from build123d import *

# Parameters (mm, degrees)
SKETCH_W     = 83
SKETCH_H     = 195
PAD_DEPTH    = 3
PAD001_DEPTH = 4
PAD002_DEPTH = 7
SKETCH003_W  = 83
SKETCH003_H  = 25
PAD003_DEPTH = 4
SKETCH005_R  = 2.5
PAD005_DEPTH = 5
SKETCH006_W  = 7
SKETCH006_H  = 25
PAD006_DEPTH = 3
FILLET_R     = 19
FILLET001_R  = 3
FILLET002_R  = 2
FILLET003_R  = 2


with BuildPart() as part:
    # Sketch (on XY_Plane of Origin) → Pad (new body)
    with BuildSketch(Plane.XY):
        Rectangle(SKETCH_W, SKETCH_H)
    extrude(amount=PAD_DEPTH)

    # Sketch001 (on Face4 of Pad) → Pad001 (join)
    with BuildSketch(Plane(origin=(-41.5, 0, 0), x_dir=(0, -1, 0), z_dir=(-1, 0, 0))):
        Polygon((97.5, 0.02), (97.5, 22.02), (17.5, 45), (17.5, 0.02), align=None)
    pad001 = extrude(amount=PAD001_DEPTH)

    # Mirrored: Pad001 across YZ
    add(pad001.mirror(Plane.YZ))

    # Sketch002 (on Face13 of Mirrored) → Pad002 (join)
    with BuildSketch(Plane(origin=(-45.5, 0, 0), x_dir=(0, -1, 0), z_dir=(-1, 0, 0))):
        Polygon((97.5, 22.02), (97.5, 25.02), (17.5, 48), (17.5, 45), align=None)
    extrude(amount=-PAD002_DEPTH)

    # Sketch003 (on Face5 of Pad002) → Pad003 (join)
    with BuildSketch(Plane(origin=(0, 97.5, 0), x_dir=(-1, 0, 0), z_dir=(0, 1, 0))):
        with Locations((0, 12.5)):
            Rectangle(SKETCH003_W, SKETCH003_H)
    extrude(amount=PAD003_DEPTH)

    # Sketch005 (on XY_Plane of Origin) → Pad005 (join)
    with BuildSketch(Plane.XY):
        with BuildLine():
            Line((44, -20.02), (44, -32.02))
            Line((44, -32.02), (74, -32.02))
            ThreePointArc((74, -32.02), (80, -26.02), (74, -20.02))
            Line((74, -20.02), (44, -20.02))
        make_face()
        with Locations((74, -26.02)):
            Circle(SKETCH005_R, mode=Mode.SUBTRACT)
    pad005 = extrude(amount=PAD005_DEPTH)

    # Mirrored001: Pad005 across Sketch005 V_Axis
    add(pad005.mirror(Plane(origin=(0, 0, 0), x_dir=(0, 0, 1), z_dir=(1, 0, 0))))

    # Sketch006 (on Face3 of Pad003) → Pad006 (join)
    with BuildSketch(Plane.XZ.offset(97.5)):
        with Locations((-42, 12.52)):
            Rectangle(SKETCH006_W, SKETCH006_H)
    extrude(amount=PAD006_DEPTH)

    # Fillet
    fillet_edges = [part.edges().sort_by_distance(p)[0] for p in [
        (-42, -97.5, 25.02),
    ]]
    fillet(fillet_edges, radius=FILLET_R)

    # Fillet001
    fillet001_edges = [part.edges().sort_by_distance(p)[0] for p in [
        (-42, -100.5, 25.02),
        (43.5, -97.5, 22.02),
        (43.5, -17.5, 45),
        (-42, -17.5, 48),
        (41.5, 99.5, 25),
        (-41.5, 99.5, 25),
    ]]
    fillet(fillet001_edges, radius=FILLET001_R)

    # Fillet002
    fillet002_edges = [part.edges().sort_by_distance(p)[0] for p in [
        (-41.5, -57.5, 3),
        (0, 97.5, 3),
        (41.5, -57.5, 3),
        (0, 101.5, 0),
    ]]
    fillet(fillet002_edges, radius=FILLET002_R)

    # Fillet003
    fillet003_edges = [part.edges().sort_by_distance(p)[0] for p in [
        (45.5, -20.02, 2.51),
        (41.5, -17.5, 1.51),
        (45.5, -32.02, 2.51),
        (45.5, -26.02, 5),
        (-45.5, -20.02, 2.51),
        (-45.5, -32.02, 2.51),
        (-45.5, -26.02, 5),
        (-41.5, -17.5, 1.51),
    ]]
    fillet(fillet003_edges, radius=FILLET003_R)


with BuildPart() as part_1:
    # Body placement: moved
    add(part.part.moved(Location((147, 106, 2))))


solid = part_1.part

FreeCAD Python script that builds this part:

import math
import FreeCAD as App
import Part
import Sketcher
from FreeCAD import Vector
Q = App.Units.Quantity


def edges_at(feature, points):
    """Names of the edges that pass closest to the given points."""
    edges = feature.Shape.Edges
    near = lambda p: min(range(len(edges)), key=lambda i: edges[i].distToShape(Part.Vertex(*p))[0])
    return sorted({f"Edge{near(p) + 1}" for p in points})

doc = App.newDocument("Part")
body = doc.addObject("PartDesign::Body", "Body")

sketch1 = doc.addObject("Sketcher::SketchObject", "Sketch")
body.addObject(sketch1)
sketch1.AttachmentSupport = (doc.XY_Plane, [""])
sketch1.MapMode = "FlatFace"
sketch1.addGeometry(Part.LineSegment(Vector(-42, 98, 0), Vector(-42, -98, 0)), False)
sketch1.addGeometry(Part.LineSegment(Vector(-42, -98, 0), Vector(42, -98, 0)), False)
sketch1.addGeometry(Part.LineSegment(Vector(42, -98, 0), Vector(42, 98, 0)), False)
sketch1.addGeometry(Part.LineSegment(Vector(42, 98, 0), Vector(-42, 98, 0)), False)
sketch1.addConstraint(Sketcher.Constraint("Coincident", 0, 2, 1, 1))
sketch1.addConstraint(Sketcher.Constraint("Coincident", 1, 2, 2, 1))
sketch1.addConstraint(Sketcher.Constraint("Coincident", 2, 2, 3, 1))
sketch1.addConstraint(Sketcher.Constraint("Coincident", 3, 2, 0, 1))
sketch1.addConstraint(Sketcher.Constraint("Vertical", 0))
sketch1.addConstraint(Sketcher.Constraint("Horizontal", 1))
sketch1.addConstraint(Sketcher.Constraint("Vertical", 2))
sketch1.addConstraint(Sketcher.Constraint("Horizontal", 3))
sketch1.addConstraint(Sketcher.Constraint("Symmetric", 0, 2, 2, 2, -1, 1))
sketch1.addConstraint(Sketcher.Constraint("DistanceX", 1, 1, 1, 2, Q("83 mm")))
sketch1.addConstraint(Sketcher.Constraint("DistanceY", 0, 2, 0, 1, Q("195 mm")))
pad1 = doc.addObject("PartDesign::Pad", "Pad")
body.addObject(pad1)
pad1.Profile = sketch1
pad1.Length = 3

sketch2 = doc.addObject("Sketcher::SketchObject", "Sketch001")
body.addObject(sketch2)
sketch2.AttachmentSupport = (doc.YZ_Plane, [""])
sketch2.MapMode = "FlatFace"
sketch2.AttachmentOffset = App.Placement(Vector(0, 0, -41.5), App.Rotation())
sketch2.addGeometry(Part.LineSegment(Vector(-98, 0, 0), Vector(-98, 22, 0)), False)
sketch2.addGeometry(Part.LineSegment(Vector(-98, 22, 0), Vector(-18, 45, 0)), False)
sketch2.addGeometry(Part.LineSegment(Vector(-18, 45, 0), Vector(-18, 0, 0)), False)
sketch2.addGeometry(Part.LineSegment(Vector(-18, 0, 0), Vector(-98, 0, 0)), False)
sketch2.addConstraint(Sketcher.Constraint("Coincident", 0, 2, 1, 1))
sketch2.addConstraint(Sketcher.Constraint("Coincident", 1, 2, 2, 1))
sketch2.addConstraint(Sketcher.Constraint("Coincident", 2, 2, 3, 1))
sketch2.addConstraint(Sketcher.Constraint("Coincident", 3, 2, 0, 1))
sketch2.addConstraint(Sketcher.Constraint("Vertical", 0))
sketch2.addConstraint(Sketcher.Constraint("Vertical", 2))
sketch2.addConstraint(Sketcher.Constraint("Horizontal", 3))
sketch2.addConstraint(Sketcher.Constraint("DistanceX", 3, 2, 3, 1, Q("80 mm")))
sketch2.addConstraint(Sketcher.Constraint("DistanceY", 0, 1, 0, 2, Q("22 mm")))
sketch2.addConstraint(Sketcher.Constraint("DistanceY", -1, 1, 1, 2, Q("45 mm")))
sketch2.addConstraint(Sketcher.Constraint("DistanceY", 2, 2, 2, 1, Q("44.98 mm")))
sketch2.addConstraint(Sketcher.Constraint("DistanceX", 0, 2, -1, 1, Q("97.5 mm")))
pad2 = doc.addObject("PartDesign::Pad", "Pad001")
body.addObject(pad2)
pad2.Profile = sketch2
pad2.Length = 4
pad2.Reversed = True
doc.recompute()

mirrored = doc.addObject("PartDesign::Mirrored", "Mirrored")
body.addObject(mirrored)
mirrored.Originals = [pad2]
mirrored.MirrorPlane = (doc.YZ_Plane, [""])
body.Tip = mirrored

sketch3 = doc.addObject("Sketcher::SketchObject", "Sketch002")
body.addObject(sketch3)
sketch3.AttachmentSupport = (doc.YZ_Plane, [""])
sketch3.MapMode = "FlatFace"
sketch3.AttachmentOffset = App.Placement(Vector(0, 0, -45.5), App.Rotation())
sketch3.addGeometry(Part.LineSegment(Vector(-97.5, 22, 0), Vector(-97.5, 25, 0)), False)
sketch3.addGeometry(Part.LineSegment(Vector(-97.5, 25, 0), Vector(-17.5, 48, 0)), False)
sketch3.addGeometry(Part.LineSegment(Vector(-17.5, 48, 0), Vector(-17.5, 45, 0)), False)
sketch3.addGeometry(Part.LineSegment(Vector(-17.5, 45, 0), Vector(-97.5, 22, 0)), False)
sketch3.addConstraint(Sketcher.Constraint("Coincident", 0, 2, 1, 1))
sketch3.addConstraint(Sketcher.Constraint("Coincident", 1, 2, 2, 1))
sketch3.addConstraint(Sketcher.Constraint("Coincident", 2, 2, 3, 1))
sketch3.addConstraint(Sketcher.Constraint("Coincident", 3, 2, 0, 1))
sketch3.addConstraint(Sketcher.Constraint("Vertical", 0))
sketch3.addConstraint(Sketcher.Constraint("Vertical", 2))
sketch3.addConstraint(Sketcher.Constraint("Parallel", 1, 3))
sketch3.addConstraint(Sketcher.Constraint("DistanceY", 0, 1, 0, 2, Q("3 mm")))
sketch3.addConstraint(Sketcher.Constraint("DistanceY", -1, 1, 1, 2, Q("48 mm")))
sketch3.addConstraint(Sketcher.Constraint("DistanceX", 0, 2, 1, 2, Q("80 mm")))
sketch3.addConstraint(Sketcher.Constraint("DistanceX", 0, 2, -1, 1, Q("97.5 mm")))
sketch3.addConstraint(Sketcher.Constraint("DistanceY", -1, 1, 0, 2, Q("25.02 mm")))
pad3 = doc.addObject("PartDesign::Pad", "Pad002")
body.addObject(pad3)
pad3.Profile = sketch3
pad3.Length = 7

sketch4 = doc.addObject("Sketcher::SketchObject", "Sketch003")
body.addObject(sketch4)
sketch4.AttachmentSupport = (doc.XZ_Plane, [""])
sketch4.MapMode = "FlatFace"
sketch4.AttachmentOffset = App.Placement(Vector(0, 0, -97.5), App.Rotation())
sketch4.addGeometry(Part.LineSegment(Vector(42, 25, 0), Vector(42, 0, 0)), False)
sketch4.addGeometry(Part.LineSegment(Vector(42, 0, 0), Vector(-42, 0, 0)), False)
sketch4.addGeometry(Part.LineSegment(Vector(-42, 0, 0), Vector(-42, 25, 0)), False)
sketch4.addGeometry(Part.LineSegment(Vector(-42, 25, 0), Vector(42, 25, 0)), False)
sketch4.addConstraint(Sketcher.Constraint("Coincident", 0, 2, 1, 1))
sketch4.addConstraint(Sketcher.Constraint("Coincident", 1, 2, 2, 1))
sketch4.addConstraint(Sketcher.Constraint("Coincident", 2, 2, 3, 1))
sketch4.addConstraint(Sketcher.Constraint("Coincident", 3, 2, 0, 1))
sketch4.addConstraint(Sketcher.Constraint("Vertical", 0))
sketch4.addConstraint(Sketcher.Constraint("Horizontal", 1))
sketch4.addConstraint(Sketcher.Constraint("Vertical", 2))
sketch4.addConstraint(Sketcher.Constraint("Horizontal", 3))
sketch4.addConstraint(Sketcher.Constraint("Symmetric", 0, 2, 1, 2, -1, 1))
sketch4.addConstraint(Sketcher.Constraint("DistanceX", 1, 2, 1, 1, Q("83 mm")))
sketch4.addConstraint(Sketcher.Constraint("DistanceY", 0, 2, 0, 1, Q("25 mm")))
pad4 = doc.addObject("PartDesign::Pad", "Pad003")
body.addObject(pad4)
pad4.Profile = sketch4
pad4.Length = 4
pad4.Reversed = True

sketch5 = doc.addObject("Sketcher::SketchObject", "Sketch004")
body.addObject(sketch5)
sketch5.AttachmentSupport = (doc.XY_Plane, [""])
sketch5.MapMode = "FlatFace"
sketch5.addGeometry(Part.LineSegment(Vector(44, -20, 0), Vector(44, -32, 0)), False)
sketch5.addGeometry(Part.LineSegment(Vector(44, -32, 0), Vector(74, -32, 0)), False)
sketch5.addGeometry(Part.ArcOfCircle(Part.Circle(Vector(74, -26, 0), Vector(0, 0, 1), 6), math.radians(-90), math.radians(90)), False)
sketch5.addGeometry(Part.LineSegment(Vector(74, -20, 0), Vector(44, -20, 0)), False)
sketch5.addGeometry(Part.Circle(Vector(74, -26, 0), Vector(0, 0, 1), 2.5), False)
sketch5.addConstraint(Sketcher.Constraint("Coincident", 0, 2, 1, 1))
sketch5.addConstraint(Sketcher.Constraint("Tangent", 1, 2, 2, 1))
sketch5.addConstraint(Sketcher.Constraint("Tangent", 2, 2, 3, 1))
sketch5.addConstraint(Sketcher.Constraint("Coincident", 3, 2, 0, 1))
sketch5.addConstraint(Sketcher.Constraint("Vertical", 0))
sketch5.addConstraint(Sketcher.Constraint("Horizontal", 1))
sketch5.addConstraint(Sketcher.Constraint("Horizontal", 3))
sketch5.addConstraint(Sketcher.Constraint("Coincident", 4, 3, 2, 3))
sketch5.addConstraint(Sketcher.Constraint("Diameter", 4, Q("5 mm")))
sketch5.addConstraint(Sketcher.Constraint("Radius", 2, Q("6 mm")))
sketch5.addConstraint(Sketcher.Constraint("DistanceX", 1, 1, 1, 2, Q("30 mm")))
sketch5.addConstraint(Sketcher.Constraint("DistanceX", -1, 1, 2, 3, Q("74 mm")))
sketch5.addConstraint(Sketcher.Constraint("DistanceY", 2, 3, -1, 1, Q("26.02 mm")))
pad5 = doc.addObject("PartDesign::Pad", "Pad004")
body.addObject(pad5)
pad5.Profile = sketch5
pad5.Length = 5
doc.recompute()

mirrored2 = doc.addObject("PartDesign::Mirrored", "Mirrored001")
body.addObject(mirrored2)
mirrored2.Originals = [pad5]
mirrored2.MirrorPlane = (doc.YZ_Plane, [""])
body.Tip = mirrored2

sketch6 = doc.addObject("Sketcher::SketchObject", "Sketch005")
body.addObject(sketch6)
sketch6.AttachmentSupport = (doc.XZ_Plane, [""])
sketch6.MapMode = "FlatFace"
sketch6.AttachmentOffset = App.Placement(Vector(0, 0, 97.5), App.Rotation())
sketch6.addGeometry(Part.LineSegment(Vector(-46, 25, 0), Vector(-46, 0, 0)), False)
sketch6.addGeometry(Part.LineSegment(Vector(-46, 0, 0), Vector(-38, 0, 0)), False)
sketch6.addGeometry(Part.LineSegment(Vector(-38, 0, 0), Vector(-38, 25, 0)), False)
sketch6.addGeometry(Part.LineSegment(Vector(-38, 25, 0), Vector(-46, 25, 0)), False)
sketch6.addConstraint(Sketcher.Constraint("Coincident", 0, 2, 1, 1))
sketch6.addConstraint(Sketcher.Constraint("Coincident", 1, 2, 2, 1))
sketch6.addConstraint(Sketcher.Constraint("Coincident", 2, 2, 3, 1))
sketch6.addConstraint(Sketcher.Constraint("Coincident", 3, 2, 0, 1))
sketch6.addConstraint(Sketcher.Constraint("Vertical", 0))
sketch6.addConstraint(Sketcher.Constraint("Horizontal", 1))
sketch6.addConstraint(Sketcher.Constraint("Vertical", 2))
sketch6.addConstraint(Sketcher.Constraint("Horizontal", 3))
sketch6.addConstraint(Sketcher.Constraint("DistanceX", 1, 1, 1, 2, Q("7 mm")))
sketch6.addConstraint(Sketcher.Constraint("DistanceY", 0, 2, 0, 1, Q("25 mm")))
sketch6.addConstraint(Sketcher.Constraint("DistanceX", 0, 2, -1, 1, Q("45.5 mm")))
sketch6.addConstraint(Sketcher.Constraint("DistanceY", -1, 1, 0, 2, Q("0.02 mm")))
pad6 = doc.addObject("PartDesign::Pad", "Pad005")
body.addObject(pad6)
pad6.Profile = sketch6
pad6.Length = 3
doc.recompute()

fillet = doc.addObject("PartDesign::Fillet", "Fillet")
body.addObject(fillet)
fillet.Base = (pad6, edges_at(pad6, [(-42, -97.5, 25.02)]))
fillet.Radius = 19
doc.recompute()

fillet2 = doc.addObject("PartDesign::Fillet", "Fillet001")
body.addObject(fillet2)
fillet2.Base = (fillet, edges_at(fillet, [
    (-42, -100.5, 25.02),
    (43.5, -97.5, 22.02),
    (43.5, -17.5, 45),
    (-42, -17.5, 48),
    (41.5, 99.5, 25),
    (-41.5, 99.5, 25),
]))
fillet2.Radius = 3
doc.recompute()

fillet3 = doc.addObject("PartDesign::Fillet", "Fillet002")
body.addObject(fillet3)
fillet3.Base = (fillet2, edges_at(fillet2, [
    (-41.5, -57.5, 3),
    (0, 97.5, 3),
    (41.5, -57.5, 3),
    (0, 101.5, 0),
]))
fillet3.Radius = 2
doc.recompute()

fillet4 = doc.addObject("PartDesign::Fillet", "Fillet003")
body.addObject(fillet4)
fillet4.Base = (fillet3, edges_at(fillet3, [
    (45.5, -20.02, 2.51),
    (41.5, -17.5, 1.51),
    (45.5, -32.02, 2.51),
    (45.5, -26.02, 5),
    (-45.5, -20.02, 2.51),
    (-45.5, -32.02, 2.51),
    (-45.5, -26.02, 5),
    (-41.5, -17.5, 1.51),
]))
fillet4.Radius = 2
body2 = doc.addObject("PartDesign::Body", "Body001")
doc.recompute()

body.Placement = App.Placement(Vector(147, 106, 2), App.Rotation(Vector(0, 0, 1), 0))
boolean = doc.addObject("PartDesign::Boolean", "Boolean")
body2.addObject(boolean)
boolean.Type = "Fuse"
boolean.addObjects([body])

doc.recompute()
